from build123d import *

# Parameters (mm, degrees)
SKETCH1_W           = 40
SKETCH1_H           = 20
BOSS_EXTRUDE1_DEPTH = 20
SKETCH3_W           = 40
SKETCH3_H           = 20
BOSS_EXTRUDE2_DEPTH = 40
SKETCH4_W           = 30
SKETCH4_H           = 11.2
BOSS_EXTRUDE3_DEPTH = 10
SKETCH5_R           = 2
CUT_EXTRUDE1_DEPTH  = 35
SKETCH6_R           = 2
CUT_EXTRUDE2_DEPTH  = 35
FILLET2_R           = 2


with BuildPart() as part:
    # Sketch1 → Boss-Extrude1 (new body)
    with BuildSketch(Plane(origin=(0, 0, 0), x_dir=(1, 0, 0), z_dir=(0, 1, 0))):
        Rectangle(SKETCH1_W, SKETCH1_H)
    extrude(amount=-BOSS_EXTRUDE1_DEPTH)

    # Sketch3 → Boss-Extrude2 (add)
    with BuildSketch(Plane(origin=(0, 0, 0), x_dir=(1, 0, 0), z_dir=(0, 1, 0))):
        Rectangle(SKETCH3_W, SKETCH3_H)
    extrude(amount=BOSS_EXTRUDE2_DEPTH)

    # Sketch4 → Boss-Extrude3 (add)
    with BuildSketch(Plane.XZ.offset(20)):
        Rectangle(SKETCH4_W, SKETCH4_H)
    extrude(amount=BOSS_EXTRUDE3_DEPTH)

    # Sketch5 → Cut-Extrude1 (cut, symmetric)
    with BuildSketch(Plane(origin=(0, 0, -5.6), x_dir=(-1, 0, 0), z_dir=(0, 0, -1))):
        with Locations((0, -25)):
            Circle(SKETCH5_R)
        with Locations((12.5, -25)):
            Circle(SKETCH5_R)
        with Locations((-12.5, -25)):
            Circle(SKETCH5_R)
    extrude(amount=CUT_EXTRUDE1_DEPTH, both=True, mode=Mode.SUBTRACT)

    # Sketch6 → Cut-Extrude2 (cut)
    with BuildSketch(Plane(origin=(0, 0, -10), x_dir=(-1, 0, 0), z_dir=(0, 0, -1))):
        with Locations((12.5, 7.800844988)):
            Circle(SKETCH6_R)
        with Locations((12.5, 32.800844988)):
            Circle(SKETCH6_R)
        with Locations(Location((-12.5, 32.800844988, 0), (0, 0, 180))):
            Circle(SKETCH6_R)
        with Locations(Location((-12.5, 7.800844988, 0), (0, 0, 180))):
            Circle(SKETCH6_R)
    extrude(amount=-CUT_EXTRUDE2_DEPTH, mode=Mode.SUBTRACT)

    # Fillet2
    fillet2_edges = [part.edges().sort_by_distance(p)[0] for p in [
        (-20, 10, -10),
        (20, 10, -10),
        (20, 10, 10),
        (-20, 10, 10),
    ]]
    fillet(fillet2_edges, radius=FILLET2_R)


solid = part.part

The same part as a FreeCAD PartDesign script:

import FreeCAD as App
import Part
import Sketcher


def edges_at(feature, points):
    """Names of the edges that pass closest to the given points."""
    edges = feature.Shape.Edges
    near = lambda p: min(range(len(edges)), key=lambda i: edges[i].distToShape(Part.Vertex(*p))[0])
    return sorted({f"Edge{near(p) + 1}" for p in points})


def add_polygon(sketch, points):
    """Adds a closed chain of lines whose ends are joined by coincident constraints."""
    first, n = sketch.GeometryCount, len(points)
    for a, b in zip(points, points[1:] + points[:1]):
        sketch.addGeometry(Part.LineSegment(App.Vector(*a, 0), App.Vector(*b, 0)), False)
    for i in range(n):
        sketch.addConstraint(Sketcher.Constraint("Coincident", first + i, 2, first + (i + 1) % n, 1))

doc = App.newDocument("Part")
body = doc.addObject("PartDesign::Body", "Body")

# Sketch on XZ plane
sketch1 = body.newObject("Sketcher::SketchObject", "Sketch")
sketch1.AttachmentSupport = (doc.getObject("XZ_Plane"), [""])
sketch1.MapMode = "FlatFace"
add_polygon(sketch1, [(-20, -10), (-20, 10), (20, 10), (20, -10)])  # lines 0-3
sketch1.addConstraint([
    Sketcher.Constraint("Vertical", 0),
    Sketcher.Constraint("Horizontal", 1),
    Sketcher.Constraint("Vertical", 2),
    Sketcher.Constraint("Horizontal", 3),
    Sketcher.Constraint("Symmetric", 0, 2, 2, 2, -1, 1),
    Sketcher.Constraint("DistanceX", 1, 1, 1, 2, 40.0),
    Sketcher.Constraint("DistanceY", 0, 1, 0, 2, 20.0),
])
pad1 = body.newObject("PartDesign::Pad", "Pad")
pad1.Profile = sketch1
pad1.Length = 20

# Sketch on XZ plane
sketch2 = body.newObject("Sketcher::SketchObject", "Sketch001")
sketch2.AttachmentSupport = (doc.getObject("XZ_Plane"), [""])
sketch2.MapMode = "FlatFace"
add_polygon(sketch2, [(-20, -10), (-20, 10), (20, 10), (20, -10)])  # lines 0-3
sketch2.addConstraint([
    Sketcher.Constraint("Vertical", 0),
    Sketcher.Constraint("Horizontal", 1),
    Sketcher.Constraint("Vertical", 2),
    Sketcher.Constraint("Horizontal", 3),
    Sketcher.Constraint("Symmetric", 0, 2, 2, 2, -1, 1),
    Sketcher.Constraint("DistanceX", 1, 1, 1, 2, 40.0),
    Sketcher.Constraint("DistanceY", 0, 1, 0, 2, 20.0),
])
pad2 = body.newObject("PartDesign::Pad", "Pad001")
pad2.Profile = sketch2
pad2.Length = 40
pad2.Reversed = True

# Sketch on XZ plane
sketch3 = body.newObject("Sketcher::SketchObject", "Sketch002")
sketch3.AttachmentSupport = (doc.getObject("XZ_Plane"), [""])
sketch3.MapMode = "FlatFace"
sketch3.AttachmentOffset = App.Placement(App.Vector(0, 0, 20), App.Rotation())
add_polygon(sketch3, [(-15, 5.6), (-15, -5.6), (15, -5.6), (15, 5.6)])  # lines 0-3
sketch3.addConstraint([
    Sketcher.Constraint("Vertical", 0),
    Sketcher.Constraint("Horizontal", 1),
    Sketcher.Constraint("Vertical", 2),
    Sketcher.Constraint("Horizontal", 3),
    Sketcher.Constraint("Symmetric", 0, 2, 2, 2, -1, 1),
    Sketcher.Constraint("DistanceX", 1, 1, 1, 2, 30.0),
    Sketcher.Constraint("DistanceY", 0, 2, 0, 1, 11.2),
])
pad3 = body.newObject("PartDesign::Pad", "Pad002")
pad3.Profile = sketch3
pad3.Length = 10

# Sketch on XY plane
sketch4 = body.newObject("Sketcher::SketchObject", "Sketch003")
sketch4.AttachmentSupport = (doc.getObject("XY_Plane"), [""])
sketch4.MapMode = "FlatFace"
sketch4.AttachmentOffset = App.Placement(App.Vector(0, 0, -5.6), App.Rotation())
sketch4.addGeometry([
    Part.Circle(App.Vector(0, -25, 0), App.Vector(0, 0, 1), 2),
    Part.Circle(App.Vector(-12.5, -25, 0), App.Vector(0, 0, 1), 2),
    Part.Circle(App.Vector(12.5, -25, 0), App.Vector(0, 0, 1), 2),
], False)
sketch4.addConstraint([
    Sketcher.Constraint("Equal", 0, 1),
    Sketcher.Constraint("Equal", 1, 2),
    Sketcher.Constraint("Symmetric", 1, 3, 2, 3, -2),
    Sketcher.Constraint("PointOnObject", 0, 3, -2),
    Sketcher.Constraint("Horizontal", 0, 3, 1, 3),
    Sketcher.Constraint("Diameter", 0, 4.0),
    Sketcher.Constraint("DistanceY", 0, 3, -1, 1, 25.0),
    Sketcher.Constraint("DistanceX", 1, 3, 2, 3, 25.0),
])
pocket1 = body.newObject("PartDesign::Pocket", "Pocket")
pocket1.Profile = sketch4
pocket1.Length = 70
pocket1.Midplane = True

# Sketch on XY plane
sketch5 = body.newObject("Sketcher::SketchObject", "Sketch004")
sketch5.AttachmentSupport = (doc.getObject("XY_Plane"), [""])
sketch5.MapMode = "FlatFace"
sketch5.AttachmentOffset = App.Placement(App.Vector(0, 0, -10), App.Rotation())
sketch5.addGeometry([
    Part.Circle(App.Vector(-12.5, 7.800845, 0), App.Vector(0, 0, 1), 2),
    Part.Circle(App.Vector(-12.5, 32.800845, 0), App.Vector(0, 0, 1), 2),
    Part.Circle(App.Vector(12.5, 32.800845, 0), App.Vector(0, 0, 1), 2),
    Part.Circle(App.Vector(12.5, 7.800845, 0), App.Vector(0, 0, 1), 2),
], False)
sketch5.addConstraint([
    Sketcher.Constraint("Equal", 0, 1),
    Sketcher.Constraint("Equal", 1, 2),
    Sketcher.Constraint("Equal", 2, 3),
    Sketcher.Constraint("Symmetric", 1, 3, 2, 3, -2),
    Sketcher.Constraint("Symmetric", 0, 3, 3, 3, -2),
    Sketcher.Constraint("Vertical", 0, 3, 1, 3),
    Sketcher.Constraint("Diameter", 0, 4.0),
    Sketcher.Constraint("DistanceY", 0, 3, 1, 3, 25.0),
    Sketcher.Constraint("DistanceX", 1, 3, 2, 3, 25.0),
    Sketcher.Constraint("DistanceY", -1, 1, 0, 3, 7.800845),
])
pocket2 = body.newObject("PartDesign::Pocket", "Pocket001")
pocket2.Profile = sketch5
pocket2.Length = 35
pocket2.Reversed = True
doc.recompute()

fillet = body.newObject("PartDesign::Fillet", "Fillet")
fillet.Base = (pocket2, edges_at(pocket2, [
    (-20, 10, -10),
    (20, 10, -10),
    (20, 10, 10),
    (-20, 10, 10),
]))
fillet.Radius = 2

doc.recompute()
